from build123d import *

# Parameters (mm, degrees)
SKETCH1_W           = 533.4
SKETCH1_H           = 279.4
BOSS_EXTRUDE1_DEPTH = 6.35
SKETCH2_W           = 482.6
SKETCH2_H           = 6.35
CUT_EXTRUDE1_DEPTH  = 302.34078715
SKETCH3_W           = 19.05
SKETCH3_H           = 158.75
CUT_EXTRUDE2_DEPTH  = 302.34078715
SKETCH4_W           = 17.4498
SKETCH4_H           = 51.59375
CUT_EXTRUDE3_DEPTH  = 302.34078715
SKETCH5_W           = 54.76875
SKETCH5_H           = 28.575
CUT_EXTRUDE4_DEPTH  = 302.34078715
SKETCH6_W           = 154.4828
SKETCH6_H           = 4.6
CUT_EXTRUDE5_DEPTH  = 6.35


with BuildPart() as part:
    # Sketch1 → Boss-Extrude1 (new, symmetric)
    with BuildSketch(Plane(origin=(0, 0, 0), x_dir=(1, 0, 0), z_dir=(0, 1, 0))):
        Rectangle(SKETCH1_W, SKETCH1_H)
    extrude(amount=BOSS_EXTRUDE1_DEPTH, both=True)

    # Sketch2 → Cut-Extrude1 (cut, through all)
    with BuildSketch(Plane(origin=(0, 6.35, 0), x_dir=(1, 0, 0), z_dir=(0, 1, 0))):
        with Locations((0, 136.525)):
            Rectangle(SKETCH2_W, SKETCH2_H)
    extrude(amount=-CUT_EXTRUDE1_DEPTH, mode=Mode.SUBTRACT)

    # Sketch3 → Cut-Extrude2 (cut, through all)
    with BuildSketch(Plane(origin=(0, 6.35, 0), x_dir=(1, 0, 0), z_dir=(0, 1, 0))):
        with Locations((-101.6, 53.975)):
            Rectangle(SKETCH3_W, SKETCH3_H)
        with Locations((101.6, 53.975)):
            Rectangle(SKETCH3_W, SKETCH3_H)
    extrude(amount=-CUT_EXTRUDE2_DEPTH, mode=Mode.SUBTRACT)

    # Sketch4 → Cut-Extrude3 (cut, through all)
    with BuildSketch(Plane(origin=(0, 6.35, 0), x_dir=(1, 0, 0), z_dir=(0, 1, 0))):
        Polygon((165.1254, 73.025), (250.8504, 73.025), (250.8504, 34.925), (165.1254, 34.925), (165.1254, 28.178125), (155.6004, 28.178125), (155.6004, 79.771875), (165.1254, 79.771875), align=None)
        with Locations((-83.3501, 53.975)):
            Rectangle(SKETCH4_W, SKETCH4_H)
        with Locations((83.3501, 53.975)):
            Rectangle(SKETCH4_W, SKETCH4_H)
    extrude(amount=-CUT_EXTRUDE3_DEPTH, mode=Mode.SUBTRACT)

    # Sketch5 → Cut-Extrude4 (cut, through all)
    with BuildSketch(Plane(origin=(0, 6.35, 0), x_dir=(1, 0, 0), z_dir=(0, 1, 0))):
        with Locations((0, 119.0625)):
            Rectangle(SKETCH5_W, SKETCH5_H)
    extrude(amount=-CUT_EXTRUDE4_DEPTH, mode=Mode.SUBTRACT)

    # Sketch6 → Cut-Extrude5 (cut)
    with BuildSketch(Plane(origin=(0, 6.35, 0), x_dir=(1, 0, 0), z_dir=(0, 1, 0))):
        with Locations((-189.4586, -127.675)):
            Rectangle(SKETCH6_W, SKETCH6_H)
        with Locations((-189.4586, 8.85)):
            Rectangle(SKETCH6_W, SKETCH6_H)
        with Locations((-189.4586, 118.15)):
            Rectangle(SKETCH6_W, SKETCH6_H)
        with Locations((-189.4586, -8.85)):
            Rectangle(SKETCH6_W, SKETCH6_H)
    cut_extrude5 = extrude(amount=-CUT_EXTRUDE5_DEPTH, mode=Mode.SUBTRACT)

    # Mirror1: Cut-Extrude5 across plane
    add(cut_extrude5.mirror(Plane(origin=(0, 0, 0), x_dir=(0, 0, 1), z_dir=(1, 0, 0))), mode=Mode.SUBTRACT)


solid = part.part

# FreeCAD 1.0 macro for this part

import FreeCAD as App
import Part
import Sketcher

V = App.Vector
Q = App.Units.Quantity


def add_polygon(sketch, points):
    """Adds a closed chain of lines whose ends are joined by coincident constraints."""
    first, n = sketch.GeometryCount, len(points)
    for a, b in zip(points, points[1:] + points[:1]):
        sketch.addGeometry(Part.LineSegment(App.Vector(*a, 0), App.Vector(*b, 0)), False)
    for i in range(n):
        sketch.addConstraint(Sketcher.Constraint("Coincident", first + i, 2, first + (i + 1) % n, 1))

doc = App.newDocument("Part")
body = doc.addObject("PartDesign::Body", "Body")

# Sketch on XZ plane
sketch1 = body.newObject("Sketcher::SketchObject", "Sketch")
sketch1.AttachmentSupport = (doc.getObject("XZ_Plane"), [""])
sketch1.MapMode = "FlatFace"
add_polygon(sketch1, [(-267, -140), (-267, 140), (267, 140), (267, -140)])  # lines 0-3
sketch1.addConstraint([
    Sketcher.Constraint("Vertical", 0),
    Sketcher.Constraint("Horizontal", 1),
    Sketcher.Constraint("Vertical", 2),
    Sketcher.Constraint("Horizontal", 3),
    Sketcher.Constraint("Symmetric", 0, 2, 2, 2, -1, 1),
    Sketcher.Constraint("DistanceX", 1, 1, 1, 2, Q("21 in")),
    Sketcher.Constraint("DistanceY", 0, 1, 0, 2, Q("11 in")),
])
pad1 = body.newObject("PartDesign::Pad", "Pad")
pad1.Profile = sketch1
pad1.Length = Q("0.5 in")
pad1.Midplane = True

# Sketch on XZ plane
sketch2 = body.newObject("Sketcher::SketchObject", "Sketch001")
sketch2.AttachmentSupport = (doc.getObject("XZ_Plane"), [""])
sketch2.MapMode = "FlatFace"
sketch2.AttachmentOffset = App.Placement(V(0, 0, -0.25 * 25.4), App.Rotation())
add_polygon(sketch2, [(-241, -140), (-241, -133), (241, -133), (241, -140)])  # lines 0-3
sketch2.addConstraint([
    Sketcher.Constraint("Vertical", 0),
    Sketcher.Constraint("Horizontal", 1),
    Sketcher.Constraint("Vertical", 2),
    Sketcher.Constraint("Horizontal", 3),
    Sketcher.Constraint("DistanceX", 1, 1, 1, 2, Q("19 in")),
    Sketcher.Constraint("DistanceY", 0, 1, 0, 2, Q("0.25 in")),
    Sketcher.Constraint("DistanceX", 0, 2, -1, 1, Q("9.5 in")),
    Sketcher.Constraint("DistanceY", 2, 2, -1, 1, Q("5.5 in")),
])
pocket1 = body.newObject("PartDesign::Pocket", "Pocket")
pocket1.Profile = sketch2
pocket1.Type = "ThroughAll"
pocket1.Reversed = True

# Sketch on XZ plane
sketch3 = body.newObject("Sketcher::SketchObject", "Sketch002")
sketch3.AttachmentSupport = (doc.getObject("XZ_Plane"), [""])
sketch3.MapMode = "FlatFace"
sketch3.AttachmentOffset = App.Placement(V(0, 0, -0.25 * 25.4), App.Rotation())
add_polygon(sketch3, [(-111, -133), (-111, 25), (-92, 25), (-92, -133)])  # lines 0-3
add_polygon(sketch3, [(92, -133), (92, 25), (111, 25), (111, -133)])  # lines 4-7
sketch3.addConstraint([
    Sketcher.Constraint("Vertical", 0),
    Sketcher.Constraint("Horizontal", 1),
    Sketcher.Constraint("Vertical", 2),
    Sketcher.Constraint("Horizontal", 3),
    Sketcher.Constraint("Vertical", 4),
    Sketcher.Constraint("Horizontal", 5),
    Sketcher.Constraint("Vertical", 6),
    Sketcher.Constraint("Horizontal", 7),
    Sketcher.Constraint("Symmetric", 1, 2, 4, 2, -2),
    Sketcher.Constraint("Symmetric", 3, 2, 6, 2, -2),
    Sketcher.Constraint("DistanceY", -1, 1, 0, 2, Q("1 in")),
    Sketcher.Constraint("DistanceX", 0, 2, 4, 2, Q("8 in")),
    Sketcher.Constraint("DistanceX", 1, 1, 1, 2, Q("0.75 in")),
    Sketcher.Constraint("DistanceY", 0, 1, 0, 2, Q("6.25 in")),
])
pocket2 = body.newObject("PartDesign::Pocket", "Pocket001")
pocket2.Profile = sketch3
pocket2.Type = "ThroughAll"
pocket2.Reversed = True

# Sketch on XZ plane
sketch4 = body.newObject("Sketcher::SketchObject", "Sketch003")
sketch4.AttachmentSupport = (doc.getObject("XZ_Plane"), [""])
sketch4.MapMode = "FlatFace"
sketch4.AttachmentOffset = App.Placement(V(0, 0, -0.25 * 25.4), App.Rotation())
add_polygon(sketch4, [(251, -73), (165, -73), (165, -80), (156, -80), (156, -28), (165, -28), (165, -35), (251, -35)])  # lines 0-7
add_polygon(sketch4, [(-92, -80), (-92, -28), (-75, -28), (-75, -80)])  # lines 8-11
add_polygon(sketch4, [(75, -80), (75, -28), (92, -28), (92, -80)])  # lines 12-15
sketch4.addConstraint([
    Sketcher.Constraint("Horizontal", 0),
    Sketcher.Constraint("Vertical", 1),
    Sketcher.Constraint("Horizontal", 2),
    Sketcher.Constraint("Vertical", 3),
    Sketcher.Constraint("Horizontal", 4),
    Sketcher.Constraint("Vertical", 5),
    Sketcher.Constraint("Horizontal", 6),
    Sketcher.Constraint("Vertical", 7),
    Sketcher.Constraint("Vertical", 8),
    Sketcher.Constraint("Horizontal", 9),
    Sketcher.Constraint("Vertical", 10),
    Sketcher.Constraint("Horizontal", 11),
    Sketcher.Constraint("Vertical", 12),
    Sketcher.Constraint("Horizontal", 13),
    Sketcher.Constraint("Vertical", 14),
    Sketcher.Constraint("Horizontal", 15),
    Sketcher.Constraint("Symmetric", 9, 2, 12, 2, -2),
    Sketcher.Constraint("Symmetric", 11, 2, 14, 2, -2),
    Sketcher.Constraint("Horizontal", 4, 2, 8, 2),
    Sketcher.Constraint("Horizontal", 2, 2, 10, 2),
    Sketcher.Constraint("Vertical", 1, 2, 4, 2),
    Sketcher.Constraint("Equal", 1, 5),
    Sketcher.Constraint("DistanceY", 7, 2, 7, 1, Q("1.5 in")),
    Sketcher.Constraint("DistanceX", 0, 2, 0, 1, Q("3.375 in")),
    Sketcher.Constraint("DistanceX", 2, 2, 2, 1, Q("0.375 in")),
    Sketcher.Constraint("DistanceX", 9, 1, 9, 2, Q("0.687 in")),
    Sketcher.Constraint("DistanceY", 1, 2, 1, 1, Q("0.265625 in")),
    Sketcher.Constraint("DistanceX", -1, 1, 0, 2, Q("6.501 in")),
    Sketcher.Constraint("DistanceY", 0, 2, -1, 1, Q("2.875 in")),
    Sketcher.Constraint("DistanceX", 8, 2, -1, 1, Q("3.625 in")),
])
pocket3 = body.newObject("PartDesign::Pocket", "Pocket002")
pocket3.Profile = sketch4
pocket3.Type = "ThroughAll"
pocket3.Reversed = True

# Sketch on XZ plane
sketch5 = body.newObject("Sketcher::SketchObject", "Sketch004")
sketch5.AttachmentSupport = (doc.getObject("XZ_Plane"), [""])
sketch5.MapMode = "FlatFace"
sketch5.AttachmentOffset = App.Placement(V(0, 0, -0.25 * 25.4), App.Rotation())
add_polygon(sketch5, [(-27, -133), (-27, -105), (27, -105), (27, -133)])  # lines 0-3
sketch5.addConstraint([
    Sketcher.Constraint("Vertical", 0),
    Sketcher.Constraint("Horizontal", 1),
    Sketcher.Constraint("Vertical", 2),
    Sketcher.Constraint("Horizontal", 3),
    Sketcher.Constraint("DistanceX", 1, 1, 1, 2, Q("2.15625 in")),
    Sketcher.Constraint("DistanceY", 0, 1, 0, 2, Q("1.125 in")),
    Sketcher.Constraint("DistanceY", 2, 2, -1, 1, Q("5.25 in")),
    Sketcher.Constraint("DistanceX", 0, 2, -1, 1, Q("1.078125 in")),
])
pocket4 = body.newObject("PartDesign::Pocket", "Pocket003")
pocket4.Profile = sketch5
pocket4.Type = "ThroughAll"
pocket4.Reversed = True

# Sketch on XZ plane
sketch6 = body.newObject("Sketcher::SketchObject", "Sketch005")
sketch6.AttachmentSupport = (doc.getObject("XZ_Plane"), [""])
sketch6.MapMode = "FlatFace"
sketch6.AttachmentOffset = App.Placement(V(0, 0, -0.25 * 25.4), App.Rotation())
add_polygon(sketch6, [(-266.7, 125.4), (-266.7, 130), (-112.2, 130), (-112.2, 125.4)])  # lines 0-3
add_polygon(sketch6, [(-266.7, -11.2), (-266.7, -6.5), (-112.2, -6.5), (-112.2, -11.2)])  # lines 4-7
add_polygon(sketch6, [(-266.7, -120.5), (-266.7, -115.8), (-112.2, -115.8), (-112.2, -120.5)])  # lines 8-11
add_polygon(sketch6, [(-266.7, 6.5), (-266.7, 11.2), (-112.2, 11.2), (-112.2, 6.5)])  # lines 12-15
sketch6.addConstraint([
    Sketcher.Constraint("Vertical", 0),
    Sketcher.Constraint("Horizontal", 1),
    Sketcher.Constraint("Vertical", 2),
    Sketcher.Constraint("Horizontal", 3),
    Sketcher.Constraint("Vertical", 4),
    Sketcher.Constraint("Horizontal", 5),
    Sketcher.Constraint("Vertical", 6),
    Sketcher.Constraint("Horizontal", 7),
    Sketcher.Constraint("Vertical", 8),
    Sketcher.Constraint("Horizontal", 9),
    Sketcher.Constraint("Vertical", 10),
    Sketcher.Constraint("Horizontal", 11),
    Sketcher.Constraint("Vertical", 12),
    Sketcher.Constraint("Horizontal", 13),
    Sketcher.Constraint("Vertical", 14),
    Sketcher.Constraint("Horizontal", 15),
    Sketcher.Constraint("Symmetric", 7, 2, 12, 2, -1),
    Sketcher.Constraint("Symmetric", 5, 2, 14, 2, -1),
    Sketcher.Constraint("Vertical", 3, 2, 4, 2),
    Sketcher.Constraint("Vertical", 2, 2, 5, 2),
    Sketcher.Constraint("Vertical", 7, 2, 8, 2),
    Sketcher.Constraint("Vertical", 6, 2, 9, 2),
    Sketcher.Constraint("Equal", 2, 4),
    Sketcher.Constraint("Equal", 6, 8),
    Sketcher.Constraint("DistanceY", 8, 2, 12, 2, Q("5 in")),
    Sketcher.Constraint("DistanceX", 0, 2, -1, 1, Q("10.5 in")),
    Sketcher.Constraint("DistanceX", 1, 1, 1, 2, Q("6.082 in")),
    Sketcher.Constraint("DistanceY", 4, 2, 0, 2, Q("5.375 in")),
    Sketcher.Constraint("DistanceY", 0, 1, 0, 2, 4.6),
    Sketcher.Constraint("DistanceY", -1, 1, 0, 2, 129.975),
])
pocket5 = body.newObject("PartDesign::Pocket", "Pocket004")
pocket5.Profile = sketch6
pocket5.Length = Q("0.25 in")
pocket5.Reversed = True
doc.recompute()

mirrored = body.newObject("PartDesign::Mirrored", "Mirrored")
mirrored.Originals = [pocket5]
mirrored.MirrorPlane = (doc.getObject("YZ_Plane"), [""])
body.Tip = mirrored

doc.recompute()
